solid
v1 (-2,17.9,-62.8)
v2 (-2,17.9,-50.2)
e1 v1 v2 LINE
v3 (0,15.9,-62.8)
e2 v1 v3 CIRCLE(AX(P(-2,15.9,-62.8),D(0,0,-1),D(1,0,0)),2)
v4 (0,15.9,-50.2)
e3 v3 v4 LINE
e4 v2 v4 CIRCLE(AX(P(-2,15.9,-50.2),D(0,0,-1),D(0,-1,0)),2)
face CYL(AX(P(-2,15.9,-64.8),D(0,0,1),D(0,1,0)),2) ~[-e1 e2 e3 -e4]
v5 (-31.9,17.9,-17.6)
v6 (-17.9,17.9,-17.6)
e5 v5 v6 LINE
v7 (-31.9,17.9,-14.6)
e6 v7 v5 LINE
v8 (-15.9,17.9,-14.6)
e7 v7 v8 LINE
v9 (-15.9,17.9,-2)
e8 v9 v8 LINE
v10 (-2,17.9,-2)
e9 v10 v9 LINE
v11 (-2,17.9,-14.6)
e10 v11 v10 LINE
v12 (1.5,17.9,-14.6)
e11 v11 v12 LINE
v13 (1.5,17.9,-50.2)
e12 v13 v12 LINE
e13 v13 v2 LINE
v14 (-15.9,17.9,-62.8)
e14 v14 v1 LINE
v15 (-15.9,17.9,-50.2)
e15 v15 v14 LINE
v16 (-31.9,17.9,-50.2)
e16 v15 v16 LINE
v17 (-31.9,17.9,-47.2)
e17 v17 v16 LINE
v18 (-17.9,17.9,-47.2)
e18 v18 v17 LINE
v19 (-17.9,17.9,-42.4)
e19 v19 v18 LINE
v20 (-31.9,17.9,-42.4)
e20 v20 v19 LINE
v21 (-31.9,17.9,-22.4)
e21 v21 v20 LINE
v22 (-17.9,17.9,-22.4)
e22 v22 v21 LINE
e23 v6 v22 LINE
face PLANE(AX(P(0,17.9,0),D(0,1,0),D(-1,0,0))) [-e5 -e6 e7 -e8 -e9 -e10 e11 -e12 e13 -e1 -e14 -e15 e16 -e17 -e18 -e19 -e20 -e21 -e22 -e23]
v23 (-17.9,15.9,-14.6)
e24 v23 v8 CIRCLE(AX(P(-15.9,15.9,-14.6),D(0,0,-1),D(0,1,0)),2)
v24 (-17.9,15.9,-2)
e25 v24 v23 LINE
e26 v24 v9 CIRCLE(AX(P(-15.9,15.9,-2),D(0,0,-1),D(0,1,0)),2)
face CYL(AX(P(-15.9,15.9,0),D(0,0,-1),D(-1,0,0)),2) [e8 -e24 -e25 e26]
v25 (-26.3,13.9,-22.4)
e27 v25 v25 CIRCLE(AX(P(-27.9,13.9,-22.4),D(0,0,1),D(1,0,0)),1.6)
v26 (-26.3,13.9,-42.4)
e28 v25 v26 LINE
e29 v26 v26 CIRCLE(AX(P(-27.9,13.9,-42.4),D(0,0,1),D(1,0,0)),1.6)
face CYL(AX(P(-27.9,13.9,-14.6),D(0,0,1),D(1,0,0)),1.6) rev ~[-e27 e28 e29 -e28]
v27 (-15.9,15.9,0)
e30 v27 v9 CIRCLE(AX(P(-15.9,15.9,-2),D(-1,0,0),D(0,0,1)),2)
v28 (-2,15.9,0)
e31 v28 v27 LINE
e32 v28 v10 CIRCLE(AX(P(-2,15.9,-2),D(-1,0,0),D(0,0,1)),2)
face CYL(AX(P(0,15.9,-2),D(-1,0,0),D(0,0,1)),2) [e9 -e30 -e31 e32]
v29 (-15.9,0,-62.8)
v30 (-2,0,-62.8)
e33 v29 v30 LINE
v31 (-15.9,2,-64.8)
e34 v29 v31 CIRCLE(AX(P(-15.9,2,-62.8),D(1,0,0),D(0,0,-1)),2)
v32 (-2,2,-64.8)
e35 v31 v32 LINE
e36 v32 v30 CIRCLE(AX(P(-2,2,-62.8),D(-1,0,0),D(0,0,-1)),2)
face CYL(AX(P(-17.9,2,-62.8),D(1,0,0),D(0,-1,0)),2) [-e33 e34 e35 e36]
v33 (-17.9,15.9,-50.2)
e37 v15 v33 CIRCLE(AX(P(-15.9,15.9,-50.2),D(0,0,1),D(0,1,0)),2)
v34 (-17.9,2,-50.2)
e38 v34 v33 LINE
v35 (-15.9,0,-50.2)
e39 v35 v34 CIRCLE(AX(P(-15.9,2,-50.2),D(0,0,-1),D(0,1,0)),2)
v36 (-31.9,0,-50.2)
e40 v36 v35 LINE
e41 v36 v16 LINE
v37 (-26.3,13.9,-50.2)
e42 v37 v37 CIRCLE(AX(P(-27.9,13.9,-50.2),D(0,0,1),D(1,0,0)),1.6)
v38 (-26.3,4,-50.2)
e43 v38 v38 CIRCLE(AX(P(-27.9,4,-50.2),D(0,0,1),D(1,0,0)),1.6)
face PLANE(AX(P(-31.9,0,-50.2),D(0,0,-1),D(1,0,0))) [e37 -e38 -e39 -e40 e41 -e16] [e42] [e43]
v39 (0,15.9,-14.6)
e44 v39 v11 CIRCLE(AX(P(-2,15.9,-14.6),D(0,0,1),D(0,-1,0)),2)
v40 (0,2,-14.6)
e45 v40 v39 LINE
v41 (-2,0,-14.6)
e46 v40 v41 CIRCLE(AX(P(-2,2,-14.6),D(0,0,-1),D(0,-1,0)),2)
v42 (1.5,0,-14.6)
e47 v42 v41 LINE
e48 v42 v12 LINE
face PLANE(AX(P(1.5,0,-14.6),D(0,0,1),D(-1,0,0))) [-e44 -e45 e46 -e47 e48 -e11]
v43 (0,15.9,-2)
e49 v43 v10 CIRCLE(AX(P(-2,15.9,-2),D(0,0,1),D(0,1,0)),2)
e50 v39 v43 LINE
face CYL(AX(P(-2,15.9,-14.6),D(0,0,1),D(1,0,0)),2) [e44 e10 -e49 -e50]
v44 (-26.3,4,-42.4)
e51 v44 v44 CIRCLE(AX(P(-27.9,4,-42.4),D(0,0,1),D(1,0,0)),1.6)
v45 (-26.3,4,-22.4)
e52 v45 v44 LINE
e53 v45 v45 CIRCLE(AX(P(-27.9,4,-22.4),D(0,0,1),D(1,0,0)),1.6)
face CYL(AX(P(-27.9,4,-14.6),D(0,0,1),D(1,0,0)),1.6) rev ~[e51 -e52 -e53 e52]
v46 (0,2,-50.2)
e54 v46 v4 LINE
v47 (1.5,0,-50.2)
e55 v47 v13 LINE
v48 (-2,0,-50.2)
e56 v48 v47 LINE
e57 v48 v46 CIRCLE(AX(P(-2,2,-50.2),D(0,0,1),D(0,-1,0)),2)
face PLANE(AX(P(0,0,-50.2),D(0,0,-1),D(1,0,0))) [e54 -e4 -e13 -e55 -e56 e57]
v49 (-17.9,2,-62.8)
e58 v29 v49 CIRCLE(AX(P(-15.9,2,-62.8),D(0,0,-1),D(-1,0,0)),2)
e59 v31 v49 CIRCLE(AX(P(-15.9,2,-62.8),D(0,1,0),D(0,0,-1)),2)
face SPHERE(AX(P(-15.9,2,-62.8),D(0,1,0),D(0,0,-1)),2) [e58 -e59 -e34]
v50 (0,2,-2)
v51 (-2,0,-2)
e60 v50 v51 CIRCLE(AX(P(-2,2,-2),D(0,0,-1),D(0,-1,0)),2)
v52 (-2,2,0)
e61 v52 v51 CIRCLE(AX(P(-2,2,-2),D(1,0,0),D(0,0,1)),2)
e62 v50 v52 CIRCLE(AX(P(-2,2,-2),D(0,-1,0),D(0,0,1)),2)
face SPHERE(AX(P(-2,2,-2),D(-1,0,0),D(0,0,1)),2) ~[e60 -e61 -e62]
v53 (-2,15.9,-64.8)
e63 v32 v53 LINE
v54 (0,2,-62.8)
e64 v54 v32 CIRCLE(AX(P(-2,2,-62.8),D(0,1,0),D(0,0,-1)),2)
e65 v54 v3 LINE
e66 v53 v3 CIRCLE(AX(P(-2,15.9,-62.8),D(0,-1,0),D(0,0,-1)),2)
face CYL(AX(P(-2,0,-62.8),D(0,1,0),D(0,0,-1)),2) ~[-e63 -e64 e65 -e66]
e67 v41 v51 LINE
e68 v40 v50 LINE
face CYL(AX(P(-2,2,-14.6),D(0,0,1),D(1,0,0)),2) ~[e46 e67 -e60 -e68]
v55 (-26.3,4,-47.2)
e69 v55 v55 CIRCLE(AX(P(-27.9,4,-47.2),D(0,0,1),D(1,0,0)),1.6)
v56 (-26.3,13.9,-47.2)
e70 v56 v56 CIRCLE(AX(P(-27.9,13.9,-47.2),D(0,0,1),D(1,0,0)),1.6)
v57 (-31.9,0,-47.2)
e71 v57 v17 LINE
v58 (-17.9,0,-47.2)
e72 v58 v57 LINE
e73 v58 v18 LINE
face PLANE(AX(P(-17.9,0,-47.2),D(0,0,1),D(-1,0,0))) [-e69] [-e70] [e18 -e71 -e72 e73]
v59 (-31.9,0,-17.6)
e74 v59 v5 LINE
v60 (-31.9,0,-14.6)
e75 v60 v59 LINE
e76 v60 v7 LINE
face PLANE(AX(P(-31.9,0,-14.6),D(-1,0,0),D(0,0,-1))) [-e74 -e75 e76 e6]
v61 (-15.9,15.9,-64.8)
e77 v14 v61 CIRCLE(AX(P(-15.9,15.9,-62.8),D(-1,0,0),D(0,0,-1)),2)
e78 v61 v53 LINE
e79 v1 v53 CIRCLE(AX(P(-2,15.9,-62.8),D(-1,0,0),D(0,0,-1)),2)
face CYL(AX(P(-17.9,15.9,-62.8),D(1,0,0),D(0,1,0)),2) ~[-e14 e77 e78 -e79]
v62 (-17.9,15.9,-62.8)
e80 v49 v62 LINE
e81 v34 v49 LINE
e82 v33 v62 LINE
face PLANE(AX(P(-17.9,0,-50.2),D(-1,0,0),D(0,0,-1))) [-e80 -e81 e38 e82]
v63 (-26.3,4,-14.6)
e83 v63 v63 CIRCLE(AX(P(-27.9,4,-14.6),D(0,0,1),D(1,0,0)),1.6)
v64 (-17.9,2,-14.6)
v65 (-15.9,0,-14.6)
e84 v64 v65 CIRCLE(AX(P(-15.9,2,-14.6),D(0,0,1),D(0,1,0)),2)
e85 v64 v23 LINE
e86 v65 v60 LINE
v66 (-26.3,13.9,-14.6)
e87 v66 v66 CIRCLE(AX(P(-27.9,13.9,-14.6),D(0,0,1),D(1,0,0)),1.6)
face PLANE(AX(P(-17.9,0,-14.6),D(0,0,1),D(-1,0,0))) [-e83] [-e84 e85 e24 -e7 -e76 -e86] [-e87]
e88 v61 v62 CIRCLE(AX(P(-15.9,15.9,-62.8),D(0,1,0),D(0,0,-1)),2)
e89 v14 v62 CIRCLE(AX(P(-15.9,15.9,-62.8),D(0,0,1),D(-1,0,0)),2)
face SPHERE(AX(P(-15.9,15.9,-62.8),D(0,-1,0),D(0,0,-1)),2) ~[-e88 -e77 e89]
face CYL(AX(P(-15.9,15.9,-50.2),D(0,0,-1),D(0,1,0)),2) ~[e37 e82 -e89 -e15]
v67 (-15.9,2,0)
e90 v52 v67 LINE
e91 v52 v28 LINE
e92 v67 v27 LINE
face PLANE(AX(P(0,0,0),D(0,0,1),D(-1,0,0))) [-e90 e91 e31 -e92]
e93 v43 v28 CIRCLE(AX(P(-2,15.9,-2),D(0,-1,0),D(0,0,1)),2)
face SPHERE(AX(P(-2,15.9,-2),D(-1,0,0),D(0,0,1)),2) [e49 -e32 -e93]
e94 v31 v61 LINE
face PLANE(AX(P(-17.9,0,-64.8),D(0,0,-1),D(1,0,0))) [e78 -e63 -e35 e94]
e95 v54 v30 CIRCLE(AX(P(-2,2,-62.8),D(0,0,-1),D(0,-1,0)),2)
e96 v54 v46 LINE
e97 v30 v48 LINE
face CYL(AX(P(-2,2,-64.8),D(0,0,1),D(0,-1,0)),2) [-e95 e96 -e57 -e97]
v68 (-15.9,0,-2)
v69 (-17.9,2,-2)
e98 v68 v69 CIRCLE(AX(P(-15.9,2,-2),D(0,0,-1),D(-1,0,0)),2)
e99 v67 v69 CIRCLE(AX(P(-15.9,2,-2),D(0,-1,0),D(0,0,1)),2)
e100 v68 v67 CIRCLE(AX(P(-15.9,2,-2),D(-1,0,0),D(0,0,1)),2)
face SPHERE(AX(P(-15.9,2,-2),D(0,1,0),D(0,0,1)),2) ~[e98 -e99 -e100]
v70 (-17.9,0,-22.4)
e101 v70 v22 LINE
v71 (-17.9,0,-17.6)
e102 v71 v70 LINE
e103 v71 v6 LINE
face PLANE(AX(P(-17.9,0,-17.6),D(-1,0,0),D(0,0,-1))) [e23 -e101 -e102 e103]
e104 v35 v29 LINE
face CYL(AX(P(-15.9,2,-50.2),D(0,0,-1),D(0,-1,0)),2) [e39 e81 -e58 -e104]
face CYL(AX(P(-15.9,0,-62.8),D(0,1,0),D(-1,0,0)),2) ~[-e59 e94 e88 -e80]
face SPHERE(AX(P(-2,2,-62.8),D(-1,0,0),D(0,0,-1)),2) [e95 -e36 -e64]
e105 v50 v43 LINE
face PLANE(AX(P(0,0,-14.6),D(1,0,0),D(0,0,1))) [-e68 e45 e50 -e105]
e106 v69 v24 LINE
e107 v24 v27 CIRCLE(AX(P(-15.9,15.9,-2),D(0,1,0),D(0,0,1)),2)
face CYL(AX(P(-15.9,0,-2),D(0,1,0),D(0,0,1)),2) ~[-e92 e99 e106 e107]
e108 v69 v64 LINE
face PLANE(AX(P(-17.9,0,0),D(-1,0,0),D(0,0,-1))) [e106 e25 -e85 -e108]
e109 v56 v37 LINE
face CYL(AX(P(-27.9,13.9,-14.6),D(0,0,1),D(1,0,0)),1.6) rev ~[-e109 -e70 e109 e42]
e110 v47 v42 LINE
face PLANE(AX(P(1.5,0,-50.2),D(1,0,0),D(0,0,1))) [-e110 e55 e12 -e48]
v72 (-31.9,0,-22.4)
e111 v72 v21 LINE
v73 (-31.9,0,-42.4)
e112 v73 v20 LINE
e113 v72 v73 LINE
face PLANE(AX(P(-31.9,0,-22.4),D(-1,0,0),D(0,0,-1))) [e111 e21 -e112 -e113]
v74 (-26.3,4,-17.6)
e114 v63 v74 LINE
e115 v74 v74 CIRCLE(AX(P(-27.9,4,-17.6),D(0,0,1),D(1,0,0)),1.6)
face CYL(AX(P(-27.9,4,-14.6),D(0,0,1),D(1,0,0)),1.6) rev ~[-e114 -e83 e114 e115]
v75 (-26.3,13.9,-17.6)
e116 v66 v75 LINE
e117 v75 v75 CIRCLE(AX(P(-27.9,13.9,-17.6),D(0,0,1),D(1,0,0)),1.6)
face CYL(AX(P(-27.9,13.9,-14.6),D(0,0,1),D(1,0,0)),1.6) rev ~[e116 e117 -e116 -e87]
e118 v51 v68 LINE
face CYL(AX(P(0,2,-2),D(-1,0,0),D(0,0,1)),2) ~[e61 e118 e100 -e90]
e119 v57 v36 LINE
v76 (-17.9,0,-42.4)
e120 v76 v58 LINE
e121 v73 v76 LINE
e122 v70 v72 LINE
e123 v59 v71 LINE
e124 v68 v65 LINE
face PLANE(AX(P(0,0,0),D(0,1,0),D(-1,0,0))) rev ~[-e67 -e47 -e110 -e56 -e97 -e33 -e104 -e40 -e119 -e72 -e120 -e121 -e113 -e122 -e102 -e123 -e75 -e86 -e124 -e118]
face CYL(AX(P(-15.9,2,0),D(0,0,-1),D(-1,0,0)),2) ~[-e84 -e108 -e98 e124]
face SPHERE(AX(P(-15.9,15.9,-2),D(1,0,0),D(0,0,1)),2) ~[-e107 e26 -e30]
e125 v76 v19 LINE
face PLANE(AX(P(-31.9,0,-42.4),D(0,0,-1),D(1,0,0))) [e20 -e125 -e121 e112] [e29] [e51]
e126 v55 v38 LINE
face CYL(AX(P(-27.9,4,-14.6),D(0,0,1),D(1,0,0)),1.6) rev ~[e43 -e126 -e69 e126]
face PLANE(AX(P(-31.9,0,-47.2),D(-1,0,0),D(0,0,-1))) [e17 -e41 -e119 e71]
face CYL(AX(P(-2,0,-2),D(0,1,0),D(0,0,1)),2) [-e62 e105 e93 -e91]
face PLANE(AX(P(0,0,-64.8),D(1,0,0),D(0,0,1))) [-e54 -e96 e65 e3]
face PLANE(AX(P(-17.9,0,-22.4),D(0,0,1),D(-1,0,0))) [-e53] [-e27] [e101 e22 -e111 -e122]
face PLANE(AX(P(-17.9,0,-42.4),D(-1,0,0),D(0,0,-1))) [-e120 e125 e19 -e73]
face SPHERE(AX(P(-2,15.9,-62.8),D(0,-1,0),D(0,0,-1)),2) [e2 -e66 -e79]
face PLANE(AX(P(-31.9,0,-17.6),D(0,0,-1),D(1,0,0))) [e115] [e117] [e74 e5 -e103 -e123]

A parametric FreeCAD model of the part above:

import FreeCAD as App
import Part
import Sketcher
from FreeCAD import Vector


def edges_at(feature, points):
    """Names of the edges that pass closest to the given points."""
    edges = feature.Shape.Edges
    near = lambda p: min(range(len(edges)), key=lambda i: edges[i].distToShape(Part.Vertex(*p))[0])
    return sorted({f"Edge{near(p) + 1}" for p in points})


def add_polygon(sketch, points):
    """Adds a closed chain of lines whose ends are joined by coincident constraints."""
    first, n = sketch.GeometryCount, len(points)
    for a, b in zip(points, points[1:] + points[:1]):
        sketch.addGeometry(Part.LineSegment(App.Vector(*a, 0), App.Vector(*b, 0)), False)
    for i in range(n):
        sketch.addConstraint(Sketcher.Constraint("Coincident", first + i, 2, first + (i + 1) % n, 1))

doc = App.newDocument("Part")
params = doc.addObject("Spreadsheet::Sheet", "Params")
for row, (alias, value) in enumerate([
    ("sketch1_width", "14 mm"),
    ("sketch1_height", "3 mm"),
    ("sketch1_height2", "20 mm"),
    ("sketch1_width2", "17.9 mm"),
    ("sketch1_width3", "1.5 mm"),
    ("pad1_length", "17.9 mm"),
    ("fillet_radius", "2 mm"),
    ("sketch2_diameter", "3.2 mm"),
    ("pocket1_length", "100 mm"),
], start=1):
    params.set(f"A{row}", alias)
    params.set(f"B{row}", "=" + value)
    params.setAlias(f"B{row}", alias)

body = doc.addObject("PartDesign::Body", "Body")

# Sketch on XZ plane
sketch1 = doc.addObject("Sketcher::SketchObject", "Sketch")
body.addObject(sketch1)
sketch1.AttachmentSupport = (doc.XZ_Plane, [""])
sketch1.MapMode = "FlatFace"
add_polygon(sketch1, [(-17.9, 0), (0, 0), (0, -14.6), (1.5, -14.6), (1.5, -50.2), (0, -50.2), (0, -64.8), (-17.9, -64.8), (-17.9, -50.2), (-31.9, -50.2), (-31.9, -47.2), (-17.9, -47.2), (-17.9, -42.4), (-31.9, -42.4), (-31.9, -22.4), (-17.9, -22.4), (-17.9, -17.6), (-31.9, -17.6), (-31.9, -14.6), (-17.9, -14.6)])  # lines 0-19
sketch1.addConstraint([
    Sketcher.Constraint("Horizontal", 0),
    Sketcher.Constraint("Vertical", 1),
    Sketcher.Constraint("Horizontal", 2),
    Sketcher.Constraint("Vertical", 3),
    Sketcher.Constraint("Horizontal", 4),
    Sketcher.Constraint("Vertical", 5),
    Sketcher.Constraint("Horizontal", 6),
    Sketcher.Constraint("Vertical", 7),
    Sketcher.Constraint("Horizontal", 8),
    Sketcher.Constraint("Vertical", 9),
    Sketcher.Constraint("Horizontal", 10),
    Sketcher.Constraint("Vertical", 11),
    Sketcher.Constraint("Horizontal", 12),
    Sketcher.Constraint("Vertical", 13),
    Sketcher.Constraint("Horizontal", 14),
    Sketcher.Constraint("Vertical", 15),
    Sketcher.Constraint("Horizontal", 16),
    Sketcher.Constraint("Vertical", 17),
    Sketcher.Constraint("Horizontal", 18),
    Sketcher.Constraint("Vertical", 19),
    Sketcher.Constraint("Coincident", 0, 2, -1, 1),
    Sketcher.Constraint("PointOnObject", 4, 2, -2),
    Sketcher.Constraint("Horizontal", 4, 2, 7, 2),
    Sketcher.Constraint("Horizontal", 2, 2, 17, 2),
    Sketcher.Constraint("Vertical", 7, 2, 10, 2),
    Sketcher.Constraint("Vertical", 9, 2, 12, 2),
    Sketcher.Constraint("Vertical", 11, 2, 14, 2),
    Sketcher.Constraint("Vertical", 13, 2, 16, 2),
    Sketcher.Constraint("Vertical", 15, 2, 18, 2),
    Sketcher.Constraint("Equal", 1, 5),
    Sketcher.Constraint("Equal", 11, 15),
    Sketcher.Constraint("Equal", 9, 17),
    Sketcher.Constraint("DistanceX", 8, 2, 8, 1, 14.0),
    Sketcher.Constraint("DistanceY", 9, 1, 9, 2, 3.0),
    Sketcher.Constraint("DistanceY", 13, 1, 13, 2, 20.0),
    Sketcher.Constraint("DistanceX", 0, 1, 0, 2, 17.9),
    Sketcher.Constraint("DistanceX", 2, 1, 2, 2, 1.5),
    Sketcher.Constraint("DistanceY", 9, 2, 13, 2, 24.8),
    Sketcher.Constraint("DistanceY", 1, 2, 1, 1, 14.6),
])
sketch1.setExpression("Constraints[52]", "Params.sketch1_width")
sketch1.setExpression("Constraints[53]", "Params.sketch1_height")
sketch1.setExpression("Constraints[54]", "Params.sketch1_height2")
sketch1.setExpression("Constraints[55]", "Params.sketch1_width2")
sketch1.setExpression("Constraints[56]", "Params.sketch1_width3")
pad1 = doc.addObject("PartDesign::Pad", "Pad")
body.addObject(pad1)
pad1.Profile = sketch1
pad1.setExpression("Length", "Params.pad1_length")
pad1.Reversed = True
doc.recompute()

fillet = doc.addObject("PartDesign::Fillet", "Fillet")
body.addObject(fillet)
fillet.Base = (pad1, edges_at(pad1, [
    (-17.9, 8.95, -64.8),
    (-8.95, 0, -64.8),
    (0, 8.95, -64.8),
    (-8.95, 17.9, -64.8),
    (-8.95, 17.9, 0),
    (-17.9, 8.95, 0),
    (-8.95, 0, 0),
    (0, 8.95, 0),
    (0, 17.9, -7.3),
    (0, 17.9, -57.5),
    (0, 0, -7.3),
    (0, 0, -57.5),
    (-17.9, 17.9, -57.5),
    (-17.9, 0, -57.5),
    (-17.9, 17.9, -7.3),
    (-17.9, 0, -7.3),
]))
fillet.setExpression("Radius", "Params.fillet_radius")

# Sketch on XY plane
sketch2 = doc.addObject("Sketcher::SketchObject", "Sketch001")
body.addObject(sketch2)
sketch2.AttachmentSupport = (doc.XY_Plane, [""])
sketch2.MapMode = "FlatFace"
sketch2.AttachmentOffset = App.Placement(Vector(0, 0, -14.6), App.Rotation())
sketch2.addGeometry([
    Part.Circle(Vector(-27.9, 13.9, 0), Vector(0, 0, 1), 1.6),
    Part.Circle(Vector(-27.9, 4, 0), Vector(0, 0, 1), 1.6),
], False)
sketch2.addConstraint([
    Sketcher.Constraint("Equal", 0, 1),
    Sketcher.Constraint("Vertical", 0, 3, 1, 3),
    Sketcher.Constraint("Diameter", 0, 3.2),
    Sketcher.Constraint("DistanceY", -1, 1, 1, 3, 4.0),
    Sketcher.Constraint("DistanceX", 0, 3, -1, 1, 27.9),
    Sketcher.Constraint("DistanceY", -1, 1, 0, 3, 13.9),
])
sketch2.setExpression("Constraints[2]", "Params.sketch2_diameter")
pocket1 = doc.addObject("PartDesign::Pocket", "Pocket")
body.addObject(pocket1)
pocket1.Profile = sketch2
pocket1.setExpression("Length", "Params.pocket1_length")

doc.recompute()
